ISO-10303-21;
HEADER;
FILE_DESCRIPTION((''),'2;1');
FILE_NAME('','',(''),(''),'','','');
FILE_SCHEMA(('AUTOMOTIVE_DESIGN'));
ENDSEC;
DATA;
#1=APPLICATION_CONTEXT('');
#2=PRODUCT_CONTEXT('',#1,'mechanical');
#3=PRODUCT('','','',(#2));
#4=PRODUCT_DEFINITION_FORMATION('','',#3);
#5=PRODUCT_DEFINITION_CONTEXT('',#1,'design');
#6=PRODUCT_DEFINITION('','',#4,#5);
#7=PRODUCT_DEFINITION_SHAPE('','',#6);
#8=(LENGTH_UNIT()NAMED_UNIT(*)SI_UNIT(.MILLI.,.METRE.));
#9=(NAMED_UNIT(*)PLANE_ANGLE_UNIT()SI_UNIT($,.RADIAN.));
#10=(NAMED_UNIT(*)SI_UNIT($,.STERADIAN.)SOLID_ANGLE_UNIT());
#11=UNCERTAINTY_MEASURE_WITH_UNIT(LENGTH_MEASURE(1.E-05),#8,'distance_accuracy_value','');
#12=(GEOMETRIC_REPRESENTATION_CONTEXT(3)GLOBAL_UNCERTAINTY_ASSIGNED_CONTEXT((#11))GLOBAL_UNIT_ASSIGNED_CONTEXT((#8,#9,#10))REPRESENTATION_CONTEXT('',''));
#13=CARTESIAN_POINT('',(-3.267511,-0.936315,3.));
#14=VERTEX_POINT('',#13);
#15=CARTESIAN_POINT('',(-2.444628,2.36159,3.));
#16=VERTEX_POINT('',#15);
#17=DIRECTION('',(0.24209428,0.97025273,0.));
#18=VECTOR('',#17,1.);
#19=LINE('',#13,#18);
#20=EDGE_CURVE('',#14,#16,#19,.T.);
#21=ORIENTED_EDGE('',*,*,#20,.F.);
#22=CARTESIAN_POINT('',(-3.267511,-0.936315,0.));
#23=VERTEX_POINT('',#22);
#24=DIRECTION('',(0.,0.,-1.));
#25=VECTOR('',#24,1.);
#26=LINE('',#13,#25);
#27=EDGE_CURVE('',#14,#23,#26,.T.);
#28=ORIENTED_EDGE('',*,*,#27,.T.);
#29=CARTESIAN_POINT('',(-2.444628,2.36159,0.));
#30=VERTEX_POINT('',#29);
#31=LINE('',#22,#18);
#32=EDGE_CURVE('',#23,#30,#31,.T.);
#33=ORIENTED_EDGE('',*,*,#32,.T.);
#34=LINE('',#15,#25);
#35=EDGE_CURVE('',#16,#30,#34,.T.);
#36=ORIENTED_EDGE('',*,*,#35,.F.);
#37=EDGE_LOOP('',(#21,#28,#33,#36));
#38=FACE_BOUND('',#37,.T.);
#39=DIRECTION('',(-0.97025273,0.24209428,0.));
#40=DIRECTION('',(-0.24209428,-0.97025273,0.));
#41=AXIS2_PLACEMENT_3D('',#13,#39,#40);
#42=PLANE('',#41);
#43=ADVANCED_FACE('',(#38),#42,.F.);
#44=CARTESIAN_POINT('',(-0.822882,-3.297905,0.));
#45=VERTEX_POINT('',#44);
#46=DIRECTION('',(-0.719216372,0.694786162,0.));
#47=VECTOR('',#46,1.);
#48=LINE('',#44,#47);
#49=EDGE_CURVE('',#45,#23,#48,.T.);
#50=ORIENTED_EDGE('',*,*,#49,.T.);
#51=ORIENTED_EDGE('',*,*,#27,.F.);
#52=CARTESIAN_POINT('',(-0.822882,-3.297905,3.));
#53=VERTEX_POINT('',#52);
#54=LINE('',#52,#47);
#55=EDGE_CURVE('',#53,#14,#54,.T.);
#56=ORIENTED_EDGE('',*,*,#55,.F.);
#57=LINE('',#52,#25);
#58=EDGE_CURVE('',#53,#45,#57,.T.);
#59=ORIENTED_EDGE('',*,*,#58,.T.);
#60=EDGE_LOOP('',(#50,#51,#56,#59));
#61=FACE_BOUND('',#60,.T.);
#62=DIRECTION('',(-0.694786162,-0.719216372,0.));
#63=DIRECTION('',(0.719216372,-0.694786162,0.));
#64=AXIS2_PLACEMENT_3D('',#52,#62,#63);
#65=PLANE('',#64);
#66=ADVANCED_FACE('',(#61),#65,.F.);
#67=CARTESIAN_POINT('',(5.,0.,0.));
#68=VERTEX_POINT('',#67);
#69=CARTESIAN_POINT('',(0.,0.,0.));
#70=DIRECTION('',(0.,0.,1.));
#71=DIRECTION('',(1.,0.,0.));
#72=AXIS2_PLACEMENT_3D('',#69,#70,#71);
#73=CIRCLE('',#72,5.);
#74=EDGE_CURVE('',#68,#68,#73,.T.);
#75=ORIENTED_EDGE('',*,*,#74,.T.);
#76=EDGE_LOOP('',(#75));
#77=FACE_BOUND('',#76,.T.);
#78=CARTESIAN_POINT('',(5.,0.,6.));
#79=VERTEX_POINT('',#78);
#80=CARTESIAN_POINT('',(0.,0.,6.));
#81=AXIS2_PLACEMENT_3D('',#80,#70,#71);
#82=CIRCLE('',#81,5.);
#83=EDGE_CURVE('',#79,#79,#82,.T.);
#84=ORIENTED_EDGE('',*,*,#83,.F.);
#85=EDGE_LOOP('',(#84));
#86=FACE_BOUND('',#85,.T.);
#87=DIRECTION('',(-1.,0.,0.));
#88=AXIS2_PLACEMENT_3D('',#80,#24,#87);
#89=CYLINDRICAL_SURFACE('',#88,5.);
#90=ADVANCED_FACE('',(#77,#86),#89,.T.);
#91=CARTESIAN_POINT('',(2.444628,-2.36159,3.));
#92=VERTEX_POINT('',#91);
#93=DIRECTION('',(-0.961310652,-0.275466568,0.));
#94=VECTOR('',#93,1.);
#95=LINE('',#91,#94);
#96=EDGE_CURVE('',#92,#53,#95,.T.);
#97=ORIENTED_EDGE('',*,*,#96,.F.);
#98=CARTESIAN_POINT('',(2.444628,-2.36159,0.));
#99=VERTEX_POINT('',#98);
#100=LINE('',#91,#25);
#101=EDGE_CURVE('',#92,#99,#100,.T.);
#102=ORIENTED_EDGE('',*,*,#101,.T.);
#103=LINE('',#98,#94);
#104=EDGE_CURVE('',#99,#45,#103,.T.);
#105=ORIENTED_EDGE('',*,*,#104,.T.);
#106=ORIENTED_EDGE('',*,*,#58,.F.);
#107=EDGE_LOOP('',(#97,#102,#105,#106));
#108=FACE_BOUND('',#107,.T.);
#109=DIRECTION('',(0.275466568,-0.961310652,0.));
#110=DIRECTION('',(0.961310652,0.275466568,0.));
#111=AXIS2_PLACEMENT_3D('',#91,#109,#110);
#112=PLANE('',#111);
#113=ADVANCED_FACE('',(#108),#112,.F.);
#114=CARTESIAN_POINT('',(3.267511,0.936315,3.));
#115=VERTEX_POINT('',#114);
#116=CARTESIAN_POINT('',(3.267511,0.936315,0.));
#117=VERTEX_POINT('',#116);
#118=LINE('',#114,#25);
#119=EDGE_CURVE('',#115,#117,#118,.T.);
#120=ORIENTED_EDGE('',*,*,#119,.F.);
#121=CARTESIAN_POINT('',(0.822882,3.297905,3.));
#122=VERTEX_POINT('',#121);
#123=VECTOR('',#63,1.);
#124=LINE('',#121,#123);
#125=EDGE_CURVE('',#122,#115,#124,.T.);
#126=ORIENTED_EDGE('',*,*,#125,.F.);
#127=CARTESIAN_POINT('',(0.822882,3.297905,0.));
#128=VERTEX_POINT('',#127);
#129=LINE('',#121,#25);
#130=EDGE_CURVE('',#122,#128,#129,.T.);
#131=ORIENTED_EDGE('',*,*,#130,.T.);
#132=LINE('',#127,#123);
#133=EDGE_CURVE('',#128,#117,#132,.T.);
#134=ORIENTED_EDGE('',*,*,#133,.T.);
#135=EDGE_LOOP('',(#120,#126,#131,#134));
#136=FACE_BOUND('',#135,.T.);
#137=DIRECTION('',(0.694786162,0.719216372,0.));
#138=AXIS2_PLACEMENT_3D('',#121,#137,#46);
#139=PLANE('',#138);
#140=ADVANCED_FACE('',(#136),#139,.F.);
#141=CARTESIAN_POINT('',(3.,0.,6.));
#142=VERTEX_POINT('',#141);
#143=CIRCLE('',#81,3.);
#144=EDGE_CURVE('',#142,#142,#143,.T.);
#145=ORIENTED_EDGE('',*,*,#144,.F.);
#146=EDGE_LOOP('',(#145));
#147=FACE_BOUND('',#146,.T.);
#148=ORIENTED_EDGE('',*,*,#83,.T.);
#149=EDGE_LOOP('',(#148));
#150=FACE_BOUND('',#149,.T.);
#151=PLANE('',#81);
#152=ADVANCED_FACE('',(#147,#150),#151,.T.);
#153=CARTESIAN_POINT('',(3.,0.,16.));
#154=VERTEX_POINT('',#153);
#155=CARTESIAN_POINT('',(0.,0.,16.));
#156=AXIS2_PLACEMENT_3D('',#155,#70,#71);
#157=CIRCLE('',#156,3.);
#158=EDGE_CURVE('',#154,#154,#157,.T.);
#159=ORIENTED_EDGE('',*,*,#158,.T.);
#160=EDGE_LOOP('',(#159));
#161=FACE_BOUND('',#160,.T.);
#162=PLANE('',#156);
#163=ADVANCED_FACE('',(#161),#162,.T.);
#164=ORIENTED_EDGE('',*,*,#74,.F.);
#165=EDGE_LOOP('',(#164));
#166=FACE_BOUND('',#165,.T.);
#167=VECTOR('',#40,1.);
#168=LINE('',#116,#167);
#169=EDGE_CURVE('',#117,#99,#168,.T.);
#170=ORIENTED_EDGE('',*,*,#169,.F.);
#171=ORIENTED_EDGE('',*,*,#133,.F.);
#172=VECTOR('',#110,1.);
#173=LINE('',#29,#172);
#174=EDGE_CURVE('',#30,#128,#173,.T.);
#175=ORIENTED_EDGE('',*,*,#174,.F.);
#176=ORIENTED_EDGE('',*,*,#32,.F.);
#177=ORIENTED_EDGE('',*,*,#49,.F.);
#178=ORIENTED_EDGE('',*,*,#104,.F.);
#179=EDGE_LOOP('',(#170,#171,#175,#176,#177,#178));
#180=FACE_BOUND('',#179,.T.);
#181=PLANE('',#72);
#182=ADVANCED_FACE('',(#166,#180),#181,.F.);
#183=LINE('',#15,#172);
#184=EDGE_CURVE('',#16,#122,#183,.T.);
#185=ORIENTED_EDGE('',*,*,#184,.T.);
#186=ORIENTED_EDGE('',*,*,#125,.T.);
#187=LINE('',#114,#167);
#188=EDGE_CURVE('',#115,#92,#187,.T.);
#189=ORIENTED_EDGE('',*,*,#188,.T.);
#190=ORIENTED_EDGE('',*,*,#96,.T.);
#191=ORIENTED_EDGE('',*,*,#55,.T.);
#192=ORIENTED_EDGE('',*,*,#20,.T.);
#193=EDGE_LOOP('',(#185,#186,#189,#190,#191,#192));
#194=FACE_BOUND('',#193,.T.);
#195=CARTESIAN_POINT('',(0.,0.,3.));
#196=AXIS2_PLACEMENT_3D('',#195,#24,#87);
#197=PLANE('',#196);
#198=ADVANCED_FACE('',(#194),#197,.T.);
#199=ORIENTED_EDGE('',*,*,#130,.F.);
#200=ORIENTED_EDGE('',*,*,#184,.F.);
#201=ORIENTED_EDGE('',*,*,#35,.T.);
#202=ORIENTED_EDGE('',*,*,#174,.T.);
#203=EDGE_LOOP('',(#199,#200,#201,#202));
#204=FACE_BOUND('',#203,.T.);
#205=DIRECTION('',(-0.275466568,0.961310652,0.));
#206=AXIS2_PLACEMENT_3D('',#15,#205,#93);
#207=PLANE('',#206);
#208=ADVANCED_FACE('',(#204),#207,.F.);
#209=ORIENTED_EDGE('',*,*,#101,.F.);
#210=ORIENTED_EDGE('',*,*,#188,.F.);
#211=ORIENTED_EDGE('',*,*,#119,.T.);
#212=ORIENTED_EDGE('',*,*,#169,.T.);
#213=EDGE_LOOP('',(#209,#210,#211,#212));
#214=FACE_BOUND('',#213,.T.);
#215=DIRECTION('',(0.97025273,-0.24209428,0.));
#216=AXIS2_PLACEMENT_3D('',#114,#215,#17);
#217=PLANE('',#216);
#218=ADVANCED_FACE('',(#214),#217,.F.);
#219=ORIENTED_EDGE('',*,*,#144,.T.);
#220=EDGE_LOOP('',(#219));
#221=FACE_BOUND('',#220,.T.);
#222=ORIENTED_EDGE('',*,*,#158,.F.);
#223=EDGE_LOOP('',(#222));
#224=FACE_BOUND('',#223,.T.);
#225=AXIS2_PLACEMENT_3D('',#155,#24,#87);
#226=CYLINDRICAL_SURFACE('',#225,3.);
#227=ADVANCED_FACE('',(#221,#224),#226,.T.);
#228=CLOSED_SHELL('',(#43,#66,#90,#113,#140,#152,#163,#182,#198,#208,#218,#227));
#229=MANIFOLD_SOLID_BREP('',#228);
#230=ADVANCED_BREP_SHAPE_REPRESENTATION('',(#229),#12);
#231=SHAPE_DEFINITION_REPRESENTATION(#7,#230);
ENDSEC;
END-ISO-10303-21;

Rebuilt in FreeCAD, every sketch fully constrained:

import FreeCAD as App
import Part
import Sketcher

V = App.Vector
Q = App.Units.Quantity

doc = App.newDocument("Part")
body = doc.addObject("PartDesign::Body", "Body")

# Sketch on XY plane
sketch1 = body.newObject("Sketcher::SketchObject", "Sketch")
sketch1.AttachmentSupport = (doc.getObject("XY_Plane"), [""])
sketch1.MapMode = "FlatFace"
sketch1.addGeometry(Part.Circle(V(0, 0, 0), V(0, 0, 1), 5), False)
sketch1.addConstraint([
    Sketcher.Constraint("Coincident", 0, 3, -1, 1),
    Sketcher.Constraint("Diameter", 0, Q("10 mm")),
])
pad1 = body.newObject("PartDesign::Pad", "Pad")
pad1.Profile = sketch1
pad1.Length = 6

# Sketch on XY plane
sketch2 = body.newObject("Sketcher::SketchObject", "Sketch001")
sketch2.AttachmentSupport = (doc.getObject("XY_Plane"), [""])
sketch2.MapMode = "FlatFace"
sketch2.AttachmentOffset = App.Placement(V(0, 0, 6), App.Rotation())
sketch2.addGeometry(Part.Circle(V(0, 0, 0), V(0, 0, 1), 3), False)
sketch2.addConstraint([
    Sketcher.Constraint("Coincident", 0, 3, -1, 1),
    Sketcher.Constraint("Diameter", 0, Q("6 mm")),
])
pad2 = body.newObject("PartDesign::Pad", "Pad001")
pad2.Profile = sketch2
pad2.Length = 10

# Sketch on XY plane
sketch3 = body.newObject("Sketcher::SketchObject", "Sketch002")
sketch3.AttachmentSupport = (doc.getObject("XY_Plane"), [""])
sketch3.MapMode = "FlatFace"
sketch3.addGeometry([
    Part.LineSegment(V(-2.444628, 2.36159, 0), V(0.822882, 3.297905, 0)),  # 0
    Part.LineSegment(V(0.822882, 3.297905, 0), V(3.267511, 0.936315, 0)),  # 1
    Part.LineSegment(V(3.267511, 0.936315, 0), V(2.444628, -2.36159, 0)),  # 2
    Part.LineSegment(V(2.444628, -2.36159, 0), V(-0.822882, -3.297905, 0)),  # 3
    Part.LineSegment(V(-0.822882, -3.297905, 0), V(-3.267511, -0.936315, 0)),  # 4
    Part.LineSegment(V(-3.267511, -0.936315, 0), V(-2.444628, 2.36159, 0)),  # 5
], False)
sketch3.addConstraint([
    Sketcher.Constraint("Coincident", 0, 2, 1, 1),
    Sketcher.Constraint("Coincident", 1, 2, 2, 1),
    Sketcher.Constraint("Coincident", 2, 2, 3, 1),
    Sketcher.Constraint("Coincident", 3, 2, 4, 1),
    Sketcher.Constraint("Coincident", 4, 2, 5, 1),
    Sketcher.Constraint("Coincident", 5, 2, 0, 1),
    Sketcher.Constraint("Symmetric", 0, 2, 3, 2, -1, 1),
    Sketcher.Constraint("Symmetric", 1, 2, 4, 2, -1, 1),
    Sketcher.Constraint("Symmetric", 2, 2, 5, 2, -1, 1),
    Sketcher.Constraint("Equal", 0, 1),
    Sketcher.Constraint("Equal", 1, 2),
    Sketcher.Constraint("DistanceX", -1, 1, 1, 2, Q("3.267511 mm")),
    Sketcher.Constraint("DistanceX", -1, 1, 2, 2, Q("2.444628 mm")),
    Sketcher.Constraint("DistanceY", 2, 2, -1, 1, Q("2.36159 mm")),
    Sketcher.Constraint("DistanceX", 0, 2, 1, 2, Q("2.444628 mm")),
])
pocket1 = body.newObject("PartDesign::Pocket", "Pocket")
pocket1.Profile = sketch3
pocket1.Length = 3
pocket1.Reversed = True

doc.recompute()
